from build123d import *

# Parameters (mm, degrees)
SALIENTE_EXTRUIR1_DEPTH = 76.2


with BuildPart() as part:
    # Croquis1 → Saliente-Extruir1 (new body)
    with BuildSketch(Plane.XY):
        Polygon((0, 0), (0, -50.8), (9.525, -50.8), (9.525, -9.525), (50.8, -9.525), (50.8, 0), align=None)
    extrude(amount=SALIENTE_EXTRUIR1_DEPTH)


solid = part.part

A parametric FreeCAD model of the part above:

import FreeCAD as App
import Part
import Sketcher
from FreeCAD import Vector
Q = App.Units.Quantity


def add_polygon(sketch, points):
    """Adds a closed chain of lines whose ends are joined by coincident constraints."""
    first, n = sketch.GeometryCount, len(points)
    for a, b in zip(points, points[1:] + points[:1]):
        sketch.addGeometry(Part.LineSegment(App.Vector(*a, 0), App.Vector(*b, 0)), False)
    for i in range(n):
        sketch.addConstraint(Sketcher.Constraint("Coincident", first + i, 2, first + (i + 1) % n, 1))

doc = App.newDocument("Part")
params = doc.addObject("Spreadsheet::Sheet", "Params")
for row, (alias, value) in enumerate([
    ("sketch1_width", "2 in"),
    ("sketch1_width2", "0.375 in"),
    ("pad1_length", "3 in"),
], start=1):
    params.set(f"A{row}", alias)
    params.set(f"B{row}", "=" + value)
    params.setAlias(f"B{row}", alias)

body = doc.addObject("PartDesign::Body", "Body")

# Sketch on XY plane
sketch1 = doc.addObject("Sketcher::SketchObject", "Sketch")
body.addObject(sketch1)
sketch1.AttachmentSupport = (doc.XY_Plane, [""])
sketch1.MapMode = "FlatFace"
add_polygon(sketch1, [(0, 0), (0, -50.8), (9.525, -50.8), (9.525, -9.525), (50.8, -9.525), (50.8, 0)])  # lines 0-5
sketch1.addConstraint(Sketcher.Constraint("Vertical", 0))
sketch1.addConstraint(Sketcher.Constraint("Horizontal", 1))
sketch1.addConstraint(Sketcher.Constraint("Vertical", 2))
sketch1.addConstraint(Sketcher.Constraint("Horizontal", 3))
sketch1.addConstraint(Sketcher.Constraint("Vertical", 4))
sketch1.addConstraint(Sketcher.Constraint("Horizontal", 5))
sketch1.addConstraint(Sketcher.Constraint("Coincident", 5, 2, -1, 1))
sketch1.addConstraint(Sketcher.Constraint("Equal", 5, 0))
sketch1.addConstraint(Sketcher.Constraint("Equal", 3, 2))
sketch1.addConstraint(Sketcher.Constraint("DistanceX", 5, 2, 5, 1, Q("2 in")))
sketch1.addConstraint(Sketcher.Constraint("DistanceX", 1, 1, 1, 2, Q("0.375 in")))
sketch1.setExpression("Constraints[15]", "Params.sketch1_width")
sketch1.setExpression("Constraints[16]", "Params.sketch1_width2")
pad1 = doc.addObject("PartDesign::Pad", "Pad")
body.addObject(pad1)
pad1.Profile = sketch1
pad1.setExpression("Length", "Params.pad1_length")

doc.recompute()
